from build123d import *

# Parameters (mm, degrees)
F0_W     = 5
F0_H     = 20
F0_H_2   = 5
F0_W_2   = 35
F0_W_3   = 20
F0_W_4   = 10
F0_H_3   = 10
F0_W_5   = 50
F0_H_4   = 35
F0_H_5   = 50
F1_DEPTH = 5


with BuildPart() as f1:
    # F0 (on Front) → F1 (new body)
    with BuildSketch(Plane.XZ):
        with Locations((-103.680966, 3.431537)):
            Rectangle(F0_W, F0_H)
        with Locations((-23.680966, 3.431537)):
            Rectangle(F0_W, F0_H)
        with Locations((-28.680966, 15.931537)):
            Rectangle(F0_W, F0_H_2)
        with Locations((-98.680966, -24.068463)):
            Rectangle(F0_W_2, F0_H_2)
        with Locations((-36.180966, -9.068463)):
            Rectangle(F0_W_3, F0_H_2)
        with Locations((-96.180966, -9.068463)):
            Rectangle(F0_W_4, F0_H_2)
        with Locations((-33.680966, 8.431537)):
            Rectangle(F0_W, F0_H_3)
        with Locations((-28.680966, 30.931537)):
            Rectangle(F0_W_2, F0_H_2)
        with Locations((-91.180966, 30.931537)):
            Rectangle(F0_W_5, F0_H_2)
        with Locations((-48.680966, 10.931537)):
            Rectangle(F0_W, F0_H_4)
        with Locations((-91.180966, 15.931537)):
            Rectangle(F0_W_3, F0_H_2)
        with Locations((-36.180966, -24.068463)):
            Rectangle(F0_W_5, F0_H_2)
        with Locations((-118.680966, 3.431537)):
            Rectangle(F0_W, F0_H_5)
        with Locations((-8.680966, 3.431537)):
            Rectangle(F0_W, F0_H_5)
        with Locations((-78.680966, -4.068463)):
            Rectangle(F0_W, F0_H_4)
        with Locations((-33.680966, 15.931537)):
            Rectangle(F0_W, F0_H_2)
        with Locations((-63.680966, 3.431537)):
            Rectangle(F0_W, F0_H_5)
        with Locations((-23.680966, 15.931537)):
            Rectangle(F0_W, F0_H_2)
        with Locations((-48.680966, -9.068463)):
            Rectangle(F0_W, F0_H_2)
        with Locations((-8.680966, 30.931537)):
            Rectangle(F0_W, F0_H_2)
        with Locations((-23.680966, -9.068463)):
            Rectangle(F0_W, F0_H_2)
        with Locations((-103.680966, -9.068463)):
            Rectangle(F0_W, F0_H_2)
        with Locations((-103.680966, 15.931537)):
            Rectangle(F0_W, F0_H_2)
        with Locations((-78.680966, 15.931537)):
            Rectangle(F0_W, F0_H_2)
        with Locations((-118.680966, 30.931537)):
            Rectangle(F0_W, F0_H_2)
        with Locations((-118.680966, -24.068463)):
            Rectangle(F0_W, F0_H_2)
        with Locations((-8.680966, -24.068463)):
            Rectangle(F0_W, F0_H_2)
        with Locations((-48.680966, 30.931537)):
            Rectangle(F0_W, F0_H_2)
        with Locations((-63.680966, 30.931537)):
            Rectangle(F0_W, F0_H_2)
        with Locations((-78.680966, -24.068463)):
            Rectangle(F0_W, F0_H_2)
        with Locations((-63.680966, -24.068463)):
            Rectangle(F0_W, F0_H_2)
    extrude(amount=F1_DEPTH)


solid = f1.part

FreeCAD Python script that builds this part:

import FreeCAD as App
import Part
import Sketcher


def add_polygon(sketch, points):
    """Adds a closed chain of lines whose ends are joined by coincident constraints."""
    first, n = sketch.GeometryCount, len(points)
    for a, b in zip(points, points[1:] + points[:1]):
        sketch.addGeometry(Part.LineSegment(App.Vector(*a, 0), App.Vector(*b, 0)), False)
    for i in range(n):
        sketch.addConstraint(Sketcher.Constraint("Coincident", first + i, 2, first + (i + 1) % n, 1))

doc = App.newDocument("Part")
body = doc.addObject("PartDesign::Body", "Body")

# Sketch on XZ plane
sketch1 = doc.addObject("Sketcher::SketchObject", "Sketch")
body.addObject(sketch1)
sketch1.AttachmentSupport = (doc.XZ_Plane, [""])
sketch1.MapMode = "FlatFace"
add_polygon(sketch1, [(-106.2, -11.6), (-91.2, -11.6), (-91.2, -6.6), (-101.2, -6.6), (-101.2, 13.4), (-81.2, 13.4), (-81.2, -21.6), (-116.2, -21.6), (-116.2, 28.4), (-66.2, 28.4), (-66.2, -26.6), (-6.2, -26.6), (-6.2, 33.4), (-51.2, 33.4), (-51.2, -11.6), (-21.2, -11.6), (-21.2, 18.4), (-36.2, 18.4), (-36.2, 3.4), (-31.2, 3.4), (-31.2, 13.4), (-26.2, 13.4), (-26.2, -6.6), (-46.2, -6.6), (-46.2, 28.4), (-11.2, 28.4), (-11.2, -21.6), (-61.2, -21.6), (-61.2, 33.4), (-121.2, 33.4), (-121.2, -26.6), (-76.2, -26.6), (-76.2, 18.4), (-106.2, 18.4)])  # lines 0-33
sketch1.addConstraint(Sketcher.Constraint("Horizontal", 0))
sketch1.addConstraint(Sketcher.Constraint("Vertical", 1))
sketch1.addConstraint(Sketcher.Constraint("Horizontal", 2))
sketch1.addConstraint(Sketcher.Constraint("Vertical", 3))
sketch1.addConstraint(Sketcher.Constraint("Horizontal", 4))
sketch1.addConstraint(Sketcher.Constraint("Vertical", 5))
sketch1.addConstraint(Sketcher.Constraint("Horizontal", 6))
sketch1.addConstraint(Sketcher.Constraint("Vertical", 7))
sketch1.addConstraint(Sketcher.Constraint("Horizontal", 8))
sketch1.addConstraint(Sketcher.Constraint("Vertical", 9))
sketch1.addConstraint(Sketcher.Constraint("Horizontal", 10))
sketch1.addConstraint(Sketcher.Constraint("Vertical", 11))
sketch1.addConstraint(Sketcher.Constraint("Horizontal", 12))
sketch1.addConstraint(Sketcher.Constraint("Vertical", 13))
sketch1.addConstraint(Sketcher.Constraint("Horizontal", 14))
sketch1.addConstraint(Sketcher.Constraint("Vertical", 15))
sketch1.addConstraint(Sketcher.Constraint("Horizontal", 16))
sketch1.addConstraint(Sketcher.Constraint("Vertical", 17))
sketch1.addConstraint(Sketcher.Constraint("Horizontal", 18))
sketch1.addConstraint(Sketcher.Constraint("Vertical", 19))
sketch1.addConstraint(Sketcher.Constraint("Horizontal", 20))
sketch1.addConstraint(Sketcher.Constraint("Vertical", 21))
sketch1.addConstraint(Sketcher.Constraint("Horizontal", 22))
sketch1.addConstraint(Sketcher.Constraint("Vertical", 23))
sketch1.addConstraint(Sketcher.Constraint("Horizontal", 24))
sketch1.addConstraint(Sketcher.Constraint("Vertical", 25))
sketch1.addConstraint(Sketcher.Constraint("Horizontal", 26))
sketch1.addConstraint(Sketcher.Constraint("Vertical", 27))
sketch1.addConstraint(Sketcher.Constraint("Horizontal", 28))
sketch1.addConstraint(Sketcher.Constraint("Vertical", 29))
sketch1.addConstraint(Sketcher.Constraint("Horizontal", 30))
sketch1.addConstraint(Sketcher.Constraint("Vertical", 31))
sketch1.addConstraint(Sketcher.Constraint("Horizontal", 32))
sketch1.addConstraint(Sketcher.Constraint("Vertical", 33))
sketch1.addConstraint(Sketcher.Constraint("Horizontal", 0, 2, 13, 2))
sketch1.addConstraint(Sketcher.Constraint("Horizontal", 4, 2, 19, 2))
sketch1.addConstraint(Sketcher.Constraint("Horizontal", 2, 2, 21, 2))
sketch1.addConstraint(Sketcher.Constraint("Horizontal", 8, 2, 23, 2))
sketch1.addConstraint(Sketcher.Constraint("Horizontal", 6, 2, 25, 2))
sketch1.addConstraint(Sketcher.Constraint("Horizontal", 12, 2, 27, 2))
sketch1.addConstraint(Sketcher.Constraint("Horizontal", 10, 2, 29, 2))
sketch1.addConstraint(Sketcher.Constraint("Horizontal", 16, 2, 31, 2))
sketch1.addConstraint(Sketcher.Constraint("Equal", 0, 16))
sketch1.addConstraint(Sketcher.Constraint("Equal", 18, 20))
sketch1.addConstraint(Sketcher.Constraint("Equal", 4, 22))
sketch1.addConstraint(Sketcher.Constraint("Equal", 6, 24))
sketch1.addConstraint(Sketcher.Constraint("Equal", 8, 26))
sketch1.addConstraint(Sketcher.Constraint("Equal", 10, 28))
sketch1.addConstraint(Sketcher.Constraint("Equal", 12, 30))
sketch1.addConstraint(Sketcher.Constraint("Equal", 14, 32))
sketch1.addConstraint(Sketcher.Constraint("Equal", 20, 1))
sketch1.addConstraint(Sketcher.Constraint("Equal", 22, 3))
sketch1.addConstraint(Sketcher.Constraint("Equal", 24, 5))
sketch1.addConstraint(Sketcher.Constraint("Equal", 26, 7))
sketch1.addConstraint(Sketcher.Constraint("Equal", 28, 11))
sketch1.addConstraint(Sketcher.Constraint("Equal", 30, 13))
sketch1.addConstraint(Sketcher.Constraint("Equal", 32, 15))
sketch1.addConstraint(Sketcher.Constraint("Equal", 16, 17))
sketch1.addConstraint(Sketcher.Constraint("Equal", 2, 19))
sketch1.addConstraint(Sketcher.Constraint("Equal", 5, 23))
sketch1.addConstraint(Sketcher.Constraint("Equal", 9, 27))
sketch1.addConstraint(Sketcher.Constraint("Equal", 13, 31))
sketch1.addConstraint(Sketcher.Constraint("DistanceX", 0, 1, 0, 2, 15.0))
sketch1.addConstraint(Sketcher.Constraint("DistanceX", 4, 1, 4, 2, 20.0))
sketch1.addConstraint(Sketcher.Constraint("DistanceX", 6, 2, 6, 1, 35.0))
sketch1.addConstraint(Sketcher.Constraint("DistanceX", 10, 1, 10, 2, 60.0))
sketch1.addConstraint(Sketcher.Constraint("DistanceX", 0, 2, -1, 1, 91.180966))
sketch1.addConstraint(Sketcher.Constraint("DistanceY", 0, 2, -1, 1, 11.568463))
pad1 = doc.addObject("PartDesign::Pad", "Pad")
body.addObject(pad1)
pad1.Profile = sketch1
pad1.Length = 5

doc.recompute()
